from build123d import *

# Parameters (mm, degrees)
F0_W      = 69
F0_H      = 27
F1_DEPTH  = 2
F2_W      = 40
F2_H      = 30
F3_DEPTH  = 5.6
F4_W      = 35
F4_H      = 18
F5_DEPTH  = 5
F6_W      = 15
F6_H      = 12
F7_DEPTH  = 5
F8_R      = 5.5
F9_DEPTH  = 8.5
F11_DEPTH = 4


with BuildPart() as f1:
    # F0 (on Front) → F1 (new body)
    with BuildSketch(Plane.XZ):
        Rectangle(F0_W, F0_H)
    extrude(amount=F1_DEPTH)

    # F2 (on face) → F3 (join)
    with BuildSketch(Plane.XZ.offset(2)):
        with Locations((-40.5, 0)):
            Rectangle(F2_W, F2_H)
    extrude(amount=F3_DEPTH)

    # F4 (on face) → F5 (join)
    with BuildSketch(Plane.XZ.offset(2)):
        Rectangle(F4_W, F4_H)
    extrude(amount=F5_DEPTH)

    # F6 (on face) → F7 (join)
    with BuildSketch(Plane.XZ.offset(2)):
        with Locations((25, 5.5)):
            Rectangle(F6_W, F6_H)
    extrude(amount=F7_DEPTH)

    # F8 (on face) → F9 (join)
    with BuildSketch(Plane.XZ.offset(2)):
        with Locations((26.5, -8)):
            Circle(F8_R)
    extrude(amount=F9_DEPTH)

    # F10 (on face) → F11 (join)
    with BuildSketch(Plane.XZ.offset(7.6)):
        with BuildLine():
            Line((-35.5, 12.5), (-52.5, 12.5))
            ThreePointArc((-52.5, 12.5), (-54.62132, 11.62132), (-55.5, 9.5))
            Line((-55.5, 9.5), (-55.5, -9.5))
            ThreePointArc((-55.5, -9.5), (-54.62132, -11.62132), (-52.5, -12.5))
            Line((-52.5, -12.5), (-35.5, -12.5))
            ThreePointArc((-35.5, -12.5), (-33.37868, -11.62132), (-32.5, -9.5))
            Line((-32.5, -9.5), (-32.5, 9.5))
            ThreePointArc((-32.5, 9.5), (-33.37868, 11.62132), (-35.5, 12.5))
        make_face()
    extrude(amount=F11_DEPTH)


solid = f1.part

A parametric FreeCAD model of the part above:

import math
import FreeCAD as App
import Part
import Sketcher

V = App.Vector


def add_polygon(sketch, points):
    """Adds a closed chain of lines whose ends are joined by coincident constraints."""
    first, n = sketch.GeometryCount, len(points)
    for a, b in zip(points, points[1:] + points[:1]):
        sketch.addGeometry(Part.LineSegment(App.Vector(*a, 0), App.Vector(*b, 0)), False)
    for i in range(n):
        sketch.addConstraint(Sketcher.Constraint("Coincident", first + i, 2, first + (i + 1) % n, 1))

doc = App.newDocument("Part")
body = doc.addObject("PartDesign::Body", "Body")

# Sketch on XZ plane
sketch1 = doc.addObject("Sketcher::SketchObject", "Sketch")
body.addObject(sketch1)
sketch1.AttachmentSupport = (doc.XZ_Plane, [""])
sketch1.MapMode = "FlatFace"
add_polygon(sketch1, [(-34.5, 13.5), (-34.5, -13.5), (34.5, -13.5), (34.5, 13.5)])  # lines 0-3
sketch1.addConstraint([
    Sketcher.Constraint("Vertical", 0),
    Sketcher.Constraint("Horizontal", 1),
    Sketcher.Constraint("Vertical", 2),
    Sketcher.Constraint("Horizontal", 3),
    Sketcher.Constraint("Symmetric", 0, 2, 2, 2, -1, 1),
    Sketcher.Constraint("DistanceX", 1, 1, 1, 2, 69.0),
    Sketcher.Constraint("DistanceY", 0, 2, 0, 1, 27.0),
])
pad1 = doc.addObject("PartDesign::Pad", "Pad")
body.addObject(pad1)
pad1.Profile = sketch1
pad1.Length = 2

# Sketch on XZ plane
sketch2 = doc.addObject("Sketcher::SketchObject", "Sketch001")
body.addObject(sketch2)
sketch2.AttachmentSupport = (doc.XZ_Plane, [""])
sketch2.MapMode = "FlatFace"
sketch2.AttachmentOffset = App.Placement(V(0, 0, 2), App.Rotation())
add_polygon(sketch2, [(-60.5, 15), (-60.5, -15), (-20.5, -15), (-20.5, 15)])  # lines 0-3
sketch2.addConstraint([
    Sketcher.Constraint("Vertical", 0),
    Sketcher.Constraint("Horizontal", 1),
    Sketcher.Constraint("Vertical", 2),
    Sketcher.Constraint("Horizontal", 3),
    Sketcher.Constraint("DistanceX", 1, 1, 1, 2, 40.0),
    Sketcher.Constraint("DistanceY", 0, 2, 0, 1, 30.0),
    Sketcher.Constraint("DistanceY", 0, 2, -1, 1, 15.0),
    Sketcher.Constraint("DistanceX", 0, 2, -1, 1, 60.5),
])
pad2 = doc.addObject("PartDesign::Pad", "Pad001")
body.addObject(pad2)
pad2.Profile = sketch2
pad2.Length = 5.6

# Sketch on XZ plane
sketch3 = doc.addObject("Sketcher::SketchObject", "Sketch002")
body.addObject(sketch3)
sketch3.AttachmentSupport = (doc.XZ_Plane, [""])
sketch3.MapMode = "FlatFace"
sketch3.AttachmentOffset = App.Placement(V(0, 0, 2), App.Rotation())
add_polygon(sketch3, [(-17.5, 9), (-17.5, -9), (17.5, -9), (17.5, 9)])  # lines 0-3
sketch3.addConstraint([
    Sketcher.Constraint("Vertical", 0),
    Sketcher.Constraint("Horizontal", 1),
    Sketcher.Constraint("Vertical", 2),
    Sketcher.Constraint("Horizontal", 3),
    Sketcher.Constraint("Symmetric", 0, 2, 2, 2, -1, 1),
    Sketcher.Constraint("DistanceX", 1, 1, 1, 2, 35.0),
    Sketcher.Constraint("DistanceY", 0, 2, 0, 1, 18.0),
])
pad3 = doc.addObject("PartDesign::Pad", "Pad002")
body.addObject(pad3)
pad3.Profile = sketch3
pad3.Length = 5

# Sketch on XZ plane
sketch4 = doc.addObject("Sketcher::SketchObject", "Sketch003")
body.addObject(sketch4)
sketch4.AttachmentSupport = (doc.XZ_Plane, [""])
sketch4.MapMode = "FlatFace"
sketch4.AttachmentOffset = App.Placement(V(0, 0, 2), App.Rotation())
add_polygon(sketch4, [(17.5, 11.5), (17.5, -0.5), (32.5, -0.5), (32.5, 11.5)])  # lines 0-3
sketch4.addConstraint([
    Sketcher.Constraint("Vertical", 0),
    Sketcher.Constraint("Horizontal", 1),
    Sketcher.Constraint("Vertical", 2),
    Sketcher.Constraint("Horizontal", 3),
    Sketcher.Constraint("DistanceX", 1, 1, 1, 2, 15.0),
    Sketcher.Constraint("DistanceY", 0, 2, 0, 1, 12.0),
    Sketcher.Constraint("DistanceX", -1, 1, 0, 2, 17.5),
    Sketcher.Constraint("DistanceY", 0, 2, -1, 1, 0.5),
])
pad4 = doc.addObject("PartDesign::Pad", "Pad003")
body.addObject(pad4)
pad4.Profile = sketch4
pad4.Length = 5

# Sketch on XZ plane
sketch5 = doc.addObject("Sketcher::SketchObject", "Sketch004")
body.addObject(sketch5)
sketch5.AttachmentSupport = (doc.XZ_Plane, [""])
sketch5.MapMode = "FlatFace"
sketch5.AttachmentOffset = App.Placement(V(0, 0, 2), App.Rotation())
sketch5.addGeometry(Part.Circle(V(26.5, -8, 0), V(0, 0, 1), 5.5), False)
sketch5.addConstraint([
    Sketcher.Constraint("Diameter", 0, 11.0),
    Sketcher.Constraint("DistanceY", 0, 3, -1, 1, 8.0),
    Sketcher.Constraint("DistanceX", -1, 1, 0, 3, 26.5),
])
pad5 = doc.addObject("PartDesign::Pad", "Pad004")
body.addObject(pad5)
pad5.Profile = sketch5
pad5.Length = 8.5

# Sketch on XZ plane
sketch6 = doc.addObject("Sketcher::SketchObject", "Sketch005")
body.addObject(sketch6)
sketch6.AttachmentSupport = (doc.XZ_Plane, [""])
sketch6.MapMode = "FlatFace"
sketch6.AttachmentOffset = App.Placement(V(0, 0, 7.6), App.Rotation())
sketch6.addGeometry([
    Part.LineSegment(V(-35.5, 12.5, 0), V(-52.5, 12.5, 0)),  # 0
    Part.ArcOfCircle(Part.Circle(V(-52.499999, 9.499999, 0), V(0, 0, 1), 3.000001), math.radians(90.000022), math.radians(179.999978)),  # 1
    Part.LineSegment(V(-55.5, 9.5, 0), V(-55.5, -9.5, 0)),  # 2
    Part.ArcOfCircle(Part.Circle(V(-52.499999, -9.499999, 0), V(0, 0, 1), 3.000001), math.radians(-179.999978), math.radians(-90.000022)),  # 3
    Part.LineSegment(V(-52.5, -12.5, 0), V(-35.5, -12.5, 0)),  # 4
    Part.ArcOfCircle(Part.Circle(V(-35.500001, -9.499999, 0), V(0, 0, 1), 3.000001), math.radians(-89.999978), math.radians(-0.000022)),  # 5
    Part.LineSegment(V(-32.5, -9.5, 0), V(-32.5, 9.5, 0)),  # 6
    Part.ArcOfCircle(Part.Circle(V(-35.500001, 9.499999, 0), V(0, 0, 1), 3.000001), math.radians(0.000022), math.radians(89.999978)),  # 7
], False)
sketch6.addConstraint([
    Sketcher.Constraint("Tangent", 0, 2, 1, 1),
    Sketcher.Constraint("Tangent", 1, 2, 2, 1),
    Sketcher.Constraint("Tangent", 2, 2, 3, 1),
    Sketcher.Constraint("Tangent", 3, 2, 4, 1),
    Sketcher.Constraint("Tangent", 4, 2, 5, 1),
    Sketcher.Constraint("Tangent", 5, 2, 6, 1),
    Sketcher.Constraint("Tangent", 6, 2, 7, 1),
    Sketcher.Constraint("Tangent", 7, 2, 0, 1),
    Sketcher.Constraint("Horizontal", 0),
    Sketcher.Constraint("Vertical", 2),
    Sketcher.Constraint("Horizontal", 4),
    Sketcher.Constraint("Vertical", 6),
    Sketcher.Constraint("Equal", 1, 3),
    Sketcher.Constraint("Equal", 3, 5),
    Sketcher.Constraint("Equal", 5, 7),
    Sketcher.Constraint("Radius", 1, 3.000001),
    Sketcher.Constraint("DistanceX", 0, 2, 0, 1, 17.0),
    Sketcher.Constraint("DistanceY", 2, 2, 2, 1, 19.0),
    Sketcher.Constraint("DistanceX", 1, 3, -1, 1, 52.499999),
    Sketcher.Constraint("DistanceY", -1, 1, 1, 3, 9.499999),
])
pad6 = doc.addObject("PartDesign::Pad", "Pad005")
body.addObject(pad6)
pad6.Profile = sketch6
pad6.Length = 4

doc.recompute()
